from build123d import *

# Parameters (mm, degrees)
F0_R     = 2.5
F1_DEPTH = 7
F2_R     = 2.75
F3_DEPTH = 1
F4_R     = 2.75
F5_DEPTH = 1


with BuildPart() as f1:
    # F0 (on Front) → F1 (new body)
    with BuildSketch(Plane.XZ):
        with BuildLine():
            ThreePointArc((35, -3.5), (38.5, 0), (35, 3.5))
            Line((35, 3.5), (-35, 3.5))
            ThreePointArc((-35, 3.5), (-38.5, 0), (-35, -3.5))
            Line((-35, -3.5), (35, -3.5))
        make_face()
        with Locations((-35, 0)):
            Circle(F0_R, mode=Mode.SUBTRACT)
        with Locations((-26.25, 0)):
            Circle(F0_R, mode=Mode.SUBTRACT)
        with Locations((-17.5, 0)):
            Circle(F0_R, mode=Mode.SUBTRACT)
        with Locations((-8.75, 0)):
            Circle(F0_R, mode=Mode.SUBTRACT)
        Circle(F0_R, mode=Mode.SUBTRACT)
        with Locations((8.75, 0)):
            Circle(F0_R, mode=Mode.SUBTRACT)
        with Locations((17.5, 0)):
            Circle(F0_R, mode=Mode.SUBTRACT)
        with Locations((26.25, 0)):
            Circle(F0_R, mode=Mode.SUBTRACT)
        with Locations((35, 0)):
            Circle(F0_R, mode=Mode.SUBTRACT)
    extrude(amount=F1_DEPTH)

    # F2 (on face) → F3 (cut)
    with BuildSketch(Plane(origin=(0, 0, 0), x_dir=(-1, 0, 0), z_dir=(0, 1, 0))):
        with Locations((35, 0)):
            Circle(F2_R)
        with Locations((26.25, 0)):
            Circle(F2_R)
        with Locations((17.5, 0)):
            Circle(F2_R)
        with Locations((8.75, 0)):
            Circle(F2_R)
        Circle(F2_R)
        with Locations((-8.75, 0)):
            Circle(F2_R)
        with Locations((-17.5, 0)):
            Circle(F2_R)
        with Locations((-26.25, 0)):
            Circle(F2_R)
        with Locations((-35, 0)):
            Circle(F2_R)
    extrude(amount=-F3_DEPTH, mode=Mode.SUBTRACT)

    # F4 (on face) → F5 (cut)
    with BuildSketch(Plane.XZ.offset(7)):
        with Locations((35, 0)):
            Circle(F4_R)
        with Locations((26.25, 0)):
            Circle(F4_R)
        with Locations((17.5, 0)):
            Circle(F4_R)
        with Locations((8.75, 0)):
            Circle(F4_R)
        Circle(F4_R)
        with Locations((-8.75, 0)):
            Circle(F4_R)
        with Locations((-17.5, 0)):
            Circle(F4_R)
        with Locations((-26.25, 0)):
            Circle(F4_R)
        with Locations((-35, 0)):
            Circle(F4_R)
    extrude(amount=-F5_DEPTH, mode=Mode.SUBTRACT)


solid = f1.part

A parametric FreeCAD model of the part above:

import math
import FreeCAD as App
import Part
import Sketcher
Q = App.Units.Quantity

doc = App.newDocument("Part")
body = doc.addObject("PartDesign::Body", "Body")

# Sketch on XZ plane
sketch1 = doc.addObject("Sketcher::SketchObject", "Sketch")
body.addObject(sketch1)
sketch1.AttachmentSupport = (doc.XZ_Plane, [""])
sketch1.MapMode = "FlatFace"
sketch1.addGeometry(Part.ArcOfCircle(Part.Circle(App.Vector(35, 0, 0), App.Vector(0, 0, 1), 3.5), math.radians(-90), math.radians(90)), False)
sketch1.addGeometry(Part.LineSegment(App.Vector(35, 3.5, 0), App.Vector(-35, 3.5, 0)), False)
sketch1.addGeometry(Part.ArcOfCircle(Part.Circle(App.Vector(-35, 0, 0), App.Vector(0, 0, 1), 3.5), math.radians(90), math.radians(270)), False)
sketch1.addGeometry(Part.LineSegment(App.Vector(-35, -3.5, 0), App.Vector(35, -3.5, 0)), False)
sketch1.addGeometry(Part.Circle(App.Vector(-35, 0, 0), App.Vector(0, 0, 1), 2.5), False)
sketch1.addGeometry(Part.Circle(App.Vector(-26.25, 0, 0), App.Vector(0, 0, 1), 2.5), False)
sketch1.addGeometry(Part.Circle(App.Vector(-17.5, 0, 0), App.Vector(0, 0, 1), 2.5), False)
sketch1.addGeometry(Part.Circle(App.Vector(-8.75, 0, 0), App.Vector(0, 0, 1), 2.5), False)
sketch1.addGeometry(Part.Circle(App.Vector(0, 0, 0), App.Vector(0, 0, 1), 2.5), False)
sketch1.addGeometry(Part.Circle(App.Vector(8.75, 0, 0), App.Vector(0, 0, 1), 2.5), False)
sketch1.addGeometry(Part.Circle(App.Vector(17.5, 0, 0), App.Vector(0, 0, 1), 2.5), False)
sketch1.addGeometry(Part.Circle(App.Vector(26.25, 0, 0), App.Vector(0, 0, 1), 2.5), False)
sketch1.addGeometry(Part.Circle(App.Vector(35, 0, 0), App.Vector(0, 0, 1), 2.5), False)
sketch1.addConstraint(Sketcher.Constraint("Tangent", 0, 2, 1, 1))
sketch1.addConstraint(Sketcher.Constraint("Tangent", 1, 2, 2, 1))
sketch1.addConstraint(Sketcher.Constraint("Tangent", 2, 2, 3, 1))
sketch1.addConstraint(Sketcher.Constraint("Tangent", 3, 2, 0, 1))
sketch1.addConstraint(Sketcher.Constraint("Horizontal", 1))
sketch1.addConstraint(Sketcher.Constraint("Horizontal", 3))
sketch1.addConstraint(Sketcher.Constraint("Coincident", 8, 3, -1, 1))
sketch1.addConstraint(Sketcher.Constraint("Coincident", 4, 3, 2, 3))
sketch1.addConstraint(Sketcher.Constraint("Coincident", 12, 3, 0, 3))
sketch1.addConstraint(Sketcher.Constraint("Equal", 4, 5))
sketch1.addConstraint(Sketcher.Constraint("Equal", 5, 6))
sketch1.addConstraint(Sketcher.Constraint("Equal", 6, 7))
sketch1.addConstraint(Sketcher.Constraint("Equal", 7, 8))
sketch1.addConstraint(Sketcher.Constraint("Equal", 8, 9))
sketch1.addConstraint(Sketcher.Constraint("Equal", 9, 10))
sketch1.addConstraint(Sketcher.Constraint("Equal", 10, 11))
sketch1.addConstraint(Sketcher.Constraint("Equal", 11, 12))
sketch1.addConstraint(Sketcher.Constraint("Symmetric", 0, 3, 2, 3, -1, 1))
sketch1.addConstraint(Sketcher.Constraint("Symmetric", 7, 3, 9, 3, -1, 1))
sketch1.addConstraint(Sketcher.Constraint("Symmetric", 6, 3, 10, 3, -1, 1))
sketch1.addConstraint(Sketcher.Constraint("Symmetric", 5, 3, 11, 3, -1, 1))
sketch1.addConstraint(Sketcher.Constraint("PointOnObject", 5, 3, -1))
sketch1.addConstraint(Sketcher.Constraint("PointOnObject", 6, 3, -1))
sketch1.addConstraint(Sketcher.Constraint("PointOnObject", 7, 3, -1))
sketch1.addConstraint(Sketcher.Constraint("Diameter", 4, Q("5 mm")))
sketch1.addConstraint(Sketcher.Constraint("Radius", 0, Q("3.5 mm")))
sketch1.addConstraint(Sketcher.Constraint("DistanceX", 1, 2, 1, 1, Q("70 mm")))
sketch1.addConstraint(Sketcher.Constraint("DistanceX", 5, 3, 9, 3, Q("35 mm")))
sketch1.addConstraint(Sketcher.Constraint("DistanceX", 6, 3, 10, 3, Q("35 mm")))
sketch1.addConstraint(Sketcher.Constraint("DistanceX", 5, 3, 7, 3, Q("17.5 mm")))
pad1 = doc.addObject("PartDesign::Pad", "Pad")
body.addObject(pad1)
pad1.Profile = sketch1
pad1.Length = 7

# Sketch on XZ plane
sketch2 = doc.addObject("Sketcher::SketchObject", "Sketch001")
body.addObject(sketch2)
sketch2.AttachmentSupport = (doc.XZ_Plane, [""])
sketch2.MapMode = "FlatFace"
sketch2.addGeometry(Part.Circle(App.Vector(-35, 0, 0), App.Vector(0, 0, 1), 2.75), False)
sketch2.addGeometry(Part.Circle(App.Vector(-26.25, 0, 0), App.Vector(0, 0, 1), 2.75), False)
sketch2.addGeometry(Part.Circle(App.Vector(-17.5, 0, 0), App.Vector(0, 0, 1), 2.75), False)
sketch2.addGeometry(Part.Circle(App.Vector(-8.75, 0, 0), App.Vector(0, 0, 1), 2.75), False)
sketch2.addGeometry(Part.Circle(App.Vector(0, 0, 0), App.Vector(0, 0, 1), 2.75), False)
sketch2.addGeometry(Part.Circle(App.Vector(8.75, 0, 0), App.Vector(0, 0, 1), 2.75), False)
sketch2.addGeometry(Part.Circle(App.Vector(17.5, 0, 0), App.Vector(0, 0, 1), 2.75), False)
sketch2.addGeometry(Part.Circle(App.Vector(26.25, 0, 0), App.Vector(0, 0, 1), 2.75), False)
sketch2.addGeometry(Part.Circle(App.Vector(35, 0, 0), App.Vector(0, 0, 1), 2.75), False)
sketch2.addConstraint(Sketcher.Constraint("Coincident", 4, 3, -1, 1))
sketch2.addConstraint(Sketcher.Constraint("Equal", 0, 1))
sketch2.addConstraint(Sketcher.Constraint("Equal", 1, 2))
sketch2.addConstraint(Sketcher.Constraint("Equal", 2, 3))
sketch2.addConstraint(Sketcher.Constraint("Equal", 3, 4))
sketch2.addConstraint(Sketcher.Constraint("Equal", 4, 5))
sketch2.addConstraint(Sketcher.Constraint("Equal", 5, 6))
sketch2.addConstraint(Sketcher.Constraint("Equal", 6, 7))
sketch2.addConstraint(Sketcher.Constraint("Equal", 7, 8))
sketch2.addConstraint(Sketcher.Constraint("Symmetric", 3, 3, 5, 3, -1, 1))
sketch2.addConstraint(Sketcher.Constraint("Symmetric", 2, 3, 6, 3, -1, 1))
sketch2.addConstraint(Sketcher.Constraint("Symmetric", 1, 3, 7, 3, -1, 1))
sketch2.addConstraint(Sketcher.Constraint("Symmetric", 0, 3, 8, 3, -1, 1))
sketch2.addConstraint(Sketcher.Constraint("PointOnObject", 0, 3, -1))
sketch2.addConstraint(Sketcher.Constraint("PointOnObject", 1, 3, -1))
sketch2.addConstraint(Sketcher.Constraint("PointOnObject", 2, 3, -1))
sketch2.addConstraint(Sketcher.Constraint("PointOnObject", 3, 3, -1))
sketch2.addConstraint(Sketcher.Constraint("Diameter", 0, Q("5.5 mm")))
sketch2.addConstraint(Sketcher.Constraint("DistanceX", 0, 3, -1, 1, Q("35 mm")))
sketch2.addConstraint(Sketcher.Constraint("DistanceX", 1, 3, 5, 3, Q("35 mm")))
sketch2.addConstraint(Sketcher.Constraint("DistanceX", 2, 3, 6, 3, Q("35 mm")))
sketch2.addConstraint(Sketcher.Constraint("DistanceX", 1, 3, 3, 3, Q("17.5 mm")))
pocket1 = doc.addObject("PartDesign::Pocket", "Pocket")
body.addObject(pocket1)
pocket1.Profile = sketch2
pocket1.Length = 1
pocket1.Reversed = True

# Sketch on XZ plane
sketch3 = doc.addObject("Sketcher::SketchObject", "Sketch002")
body.addObject(sketch3)
sketch3.AttachmentSupport = (doc.XZ_Plane, [""])
sketch3.MapMode = "FlatFace"
sketch3.AttachmentOffset = App.Placement(App.Vector(0, 0, 7), App.Rotation())
sketch3.addGeometry(Part.Circle(App.Vector(35, 0, 0), App.Vector(0, 0, 1), 2.75), False)
sketch3.addGeometry(Part.Circle(App.Vector(26.25, 0, 0), App.Vector(0, 0, 1), 2.75), False)
sketch3.addGeometry(Part.Circle(App.Vector(17.5, 0, 0), App.Vector(0, 0, 1), 2.75), False)
sketch3.addGeometry(Part.Circle(App.Vector(8.75, 0, 0), App.Vector(0, 0, 1), 2.75), False)
sketch3.addGeometry(Part.Circle(App.Vector(0, 0, 0), App.Vector(0, 0, 1), 2.75), False)
sketch3.addGeometry(Part.Circle(App.Vector(-8.75, 0, 0), App.Vector(0, 0, 1), 2.75), False)
sketch3.addGeometry(Part.Circle(App.Vector(-17.5, 0, 0), App.Vector(0, 0, 1), 2.75), False)
sketch3.addGeometry(Part.Circle(App.Vector(-26.25, 0, 0), App.Vector(0, 0, 1), 2.75), False)
sketch3.addGeometry(Part.Circle(App.Vector(-35, 0, 0), App.Vector(0, 0, 1), 2.75), False)
sketch3.addConstraint(Sketcher.Constraint("Coincident", 4, 3, -1, 1))
sketch3.addConstraint(Sketcher.Constraint("Equal", 0, 1))
sketch3.addConstraint(Sketcher.Constraint("Equal", 1, 2))
sketch3.addConstraint(Sketcher.Constraint("Equal", 2, 3))
sketch3.addConstraint(Sketcher.Constraint("Equal", 3, 4))
sketch3.addConstraint(Sketcher.Constraint("Equal", 4, 5))
sketch3.addConstraint(Sketcher.Constraint("Equal", 5, 6))
sketch3.addConstraint(Sketcher.Constraint("Equal", 6, 7))
sketch3.addConstraint(Sketcher.Constraint("Equal", 7, 8))
sketch3.addConstraint(Sketcher.Constraint("Symmetric", 3, 3, 5, 3, -1, 1))
sketch3.addConstraint(Sketcher.Constraint("Symmetric", 2, 3, 6, 3, -1, 1))
sketch3.addConstraint(Sketcher.Constraint("Symmetric", 1, 3, 7, 3, -1, 1))
sketch3.addConstraint(Sketcher.Constraint("Symmetric", 0, 3, 8, 3, -1, 1))
sketch3.addConstraint(Sketcher.Constraint("PointOnObject", 0, 3, -1))
sketch3.addConstraint(Sketcher.Constraint("PointOnObject", 1, 3, -1))
sketch3.addConstraint(Sketcher.Constraint("PointOnObject", 2, 3, -1))
sketch3.addConstraint(Sketcher.Constraint("PointOnObject", 3, 3, -1))
sketch3.addConstraint(Sketcher.Constraint("Diameter", 0, Q("5.5 mm")))
sketch3.addConstraint(Sketcher.Constraint("DistanceX", -1, 1, 0, 3, Q("35 mm")))
sketch3.addConstraint(Sketcher.Constraint("DistanceX", 5, 3, 1, 3, Q("35 mm")))
sketch3.addConstraint(Sketcher.Constraint("DistanceX", 6, 3, 2, 3, Q("35 mm")))
sketch3.addConstraint(Sketcher.Constraint("DistanceX", 3, 3, 1, 3, Q("17.5 mm")))
pocket2 = doc.addObject("PartDesign::Pocket", "Pocket001")
body.addObject(pocket2)
pocket2.Profile = sketch3
pocket2.Length = 1

doc.recompute()
